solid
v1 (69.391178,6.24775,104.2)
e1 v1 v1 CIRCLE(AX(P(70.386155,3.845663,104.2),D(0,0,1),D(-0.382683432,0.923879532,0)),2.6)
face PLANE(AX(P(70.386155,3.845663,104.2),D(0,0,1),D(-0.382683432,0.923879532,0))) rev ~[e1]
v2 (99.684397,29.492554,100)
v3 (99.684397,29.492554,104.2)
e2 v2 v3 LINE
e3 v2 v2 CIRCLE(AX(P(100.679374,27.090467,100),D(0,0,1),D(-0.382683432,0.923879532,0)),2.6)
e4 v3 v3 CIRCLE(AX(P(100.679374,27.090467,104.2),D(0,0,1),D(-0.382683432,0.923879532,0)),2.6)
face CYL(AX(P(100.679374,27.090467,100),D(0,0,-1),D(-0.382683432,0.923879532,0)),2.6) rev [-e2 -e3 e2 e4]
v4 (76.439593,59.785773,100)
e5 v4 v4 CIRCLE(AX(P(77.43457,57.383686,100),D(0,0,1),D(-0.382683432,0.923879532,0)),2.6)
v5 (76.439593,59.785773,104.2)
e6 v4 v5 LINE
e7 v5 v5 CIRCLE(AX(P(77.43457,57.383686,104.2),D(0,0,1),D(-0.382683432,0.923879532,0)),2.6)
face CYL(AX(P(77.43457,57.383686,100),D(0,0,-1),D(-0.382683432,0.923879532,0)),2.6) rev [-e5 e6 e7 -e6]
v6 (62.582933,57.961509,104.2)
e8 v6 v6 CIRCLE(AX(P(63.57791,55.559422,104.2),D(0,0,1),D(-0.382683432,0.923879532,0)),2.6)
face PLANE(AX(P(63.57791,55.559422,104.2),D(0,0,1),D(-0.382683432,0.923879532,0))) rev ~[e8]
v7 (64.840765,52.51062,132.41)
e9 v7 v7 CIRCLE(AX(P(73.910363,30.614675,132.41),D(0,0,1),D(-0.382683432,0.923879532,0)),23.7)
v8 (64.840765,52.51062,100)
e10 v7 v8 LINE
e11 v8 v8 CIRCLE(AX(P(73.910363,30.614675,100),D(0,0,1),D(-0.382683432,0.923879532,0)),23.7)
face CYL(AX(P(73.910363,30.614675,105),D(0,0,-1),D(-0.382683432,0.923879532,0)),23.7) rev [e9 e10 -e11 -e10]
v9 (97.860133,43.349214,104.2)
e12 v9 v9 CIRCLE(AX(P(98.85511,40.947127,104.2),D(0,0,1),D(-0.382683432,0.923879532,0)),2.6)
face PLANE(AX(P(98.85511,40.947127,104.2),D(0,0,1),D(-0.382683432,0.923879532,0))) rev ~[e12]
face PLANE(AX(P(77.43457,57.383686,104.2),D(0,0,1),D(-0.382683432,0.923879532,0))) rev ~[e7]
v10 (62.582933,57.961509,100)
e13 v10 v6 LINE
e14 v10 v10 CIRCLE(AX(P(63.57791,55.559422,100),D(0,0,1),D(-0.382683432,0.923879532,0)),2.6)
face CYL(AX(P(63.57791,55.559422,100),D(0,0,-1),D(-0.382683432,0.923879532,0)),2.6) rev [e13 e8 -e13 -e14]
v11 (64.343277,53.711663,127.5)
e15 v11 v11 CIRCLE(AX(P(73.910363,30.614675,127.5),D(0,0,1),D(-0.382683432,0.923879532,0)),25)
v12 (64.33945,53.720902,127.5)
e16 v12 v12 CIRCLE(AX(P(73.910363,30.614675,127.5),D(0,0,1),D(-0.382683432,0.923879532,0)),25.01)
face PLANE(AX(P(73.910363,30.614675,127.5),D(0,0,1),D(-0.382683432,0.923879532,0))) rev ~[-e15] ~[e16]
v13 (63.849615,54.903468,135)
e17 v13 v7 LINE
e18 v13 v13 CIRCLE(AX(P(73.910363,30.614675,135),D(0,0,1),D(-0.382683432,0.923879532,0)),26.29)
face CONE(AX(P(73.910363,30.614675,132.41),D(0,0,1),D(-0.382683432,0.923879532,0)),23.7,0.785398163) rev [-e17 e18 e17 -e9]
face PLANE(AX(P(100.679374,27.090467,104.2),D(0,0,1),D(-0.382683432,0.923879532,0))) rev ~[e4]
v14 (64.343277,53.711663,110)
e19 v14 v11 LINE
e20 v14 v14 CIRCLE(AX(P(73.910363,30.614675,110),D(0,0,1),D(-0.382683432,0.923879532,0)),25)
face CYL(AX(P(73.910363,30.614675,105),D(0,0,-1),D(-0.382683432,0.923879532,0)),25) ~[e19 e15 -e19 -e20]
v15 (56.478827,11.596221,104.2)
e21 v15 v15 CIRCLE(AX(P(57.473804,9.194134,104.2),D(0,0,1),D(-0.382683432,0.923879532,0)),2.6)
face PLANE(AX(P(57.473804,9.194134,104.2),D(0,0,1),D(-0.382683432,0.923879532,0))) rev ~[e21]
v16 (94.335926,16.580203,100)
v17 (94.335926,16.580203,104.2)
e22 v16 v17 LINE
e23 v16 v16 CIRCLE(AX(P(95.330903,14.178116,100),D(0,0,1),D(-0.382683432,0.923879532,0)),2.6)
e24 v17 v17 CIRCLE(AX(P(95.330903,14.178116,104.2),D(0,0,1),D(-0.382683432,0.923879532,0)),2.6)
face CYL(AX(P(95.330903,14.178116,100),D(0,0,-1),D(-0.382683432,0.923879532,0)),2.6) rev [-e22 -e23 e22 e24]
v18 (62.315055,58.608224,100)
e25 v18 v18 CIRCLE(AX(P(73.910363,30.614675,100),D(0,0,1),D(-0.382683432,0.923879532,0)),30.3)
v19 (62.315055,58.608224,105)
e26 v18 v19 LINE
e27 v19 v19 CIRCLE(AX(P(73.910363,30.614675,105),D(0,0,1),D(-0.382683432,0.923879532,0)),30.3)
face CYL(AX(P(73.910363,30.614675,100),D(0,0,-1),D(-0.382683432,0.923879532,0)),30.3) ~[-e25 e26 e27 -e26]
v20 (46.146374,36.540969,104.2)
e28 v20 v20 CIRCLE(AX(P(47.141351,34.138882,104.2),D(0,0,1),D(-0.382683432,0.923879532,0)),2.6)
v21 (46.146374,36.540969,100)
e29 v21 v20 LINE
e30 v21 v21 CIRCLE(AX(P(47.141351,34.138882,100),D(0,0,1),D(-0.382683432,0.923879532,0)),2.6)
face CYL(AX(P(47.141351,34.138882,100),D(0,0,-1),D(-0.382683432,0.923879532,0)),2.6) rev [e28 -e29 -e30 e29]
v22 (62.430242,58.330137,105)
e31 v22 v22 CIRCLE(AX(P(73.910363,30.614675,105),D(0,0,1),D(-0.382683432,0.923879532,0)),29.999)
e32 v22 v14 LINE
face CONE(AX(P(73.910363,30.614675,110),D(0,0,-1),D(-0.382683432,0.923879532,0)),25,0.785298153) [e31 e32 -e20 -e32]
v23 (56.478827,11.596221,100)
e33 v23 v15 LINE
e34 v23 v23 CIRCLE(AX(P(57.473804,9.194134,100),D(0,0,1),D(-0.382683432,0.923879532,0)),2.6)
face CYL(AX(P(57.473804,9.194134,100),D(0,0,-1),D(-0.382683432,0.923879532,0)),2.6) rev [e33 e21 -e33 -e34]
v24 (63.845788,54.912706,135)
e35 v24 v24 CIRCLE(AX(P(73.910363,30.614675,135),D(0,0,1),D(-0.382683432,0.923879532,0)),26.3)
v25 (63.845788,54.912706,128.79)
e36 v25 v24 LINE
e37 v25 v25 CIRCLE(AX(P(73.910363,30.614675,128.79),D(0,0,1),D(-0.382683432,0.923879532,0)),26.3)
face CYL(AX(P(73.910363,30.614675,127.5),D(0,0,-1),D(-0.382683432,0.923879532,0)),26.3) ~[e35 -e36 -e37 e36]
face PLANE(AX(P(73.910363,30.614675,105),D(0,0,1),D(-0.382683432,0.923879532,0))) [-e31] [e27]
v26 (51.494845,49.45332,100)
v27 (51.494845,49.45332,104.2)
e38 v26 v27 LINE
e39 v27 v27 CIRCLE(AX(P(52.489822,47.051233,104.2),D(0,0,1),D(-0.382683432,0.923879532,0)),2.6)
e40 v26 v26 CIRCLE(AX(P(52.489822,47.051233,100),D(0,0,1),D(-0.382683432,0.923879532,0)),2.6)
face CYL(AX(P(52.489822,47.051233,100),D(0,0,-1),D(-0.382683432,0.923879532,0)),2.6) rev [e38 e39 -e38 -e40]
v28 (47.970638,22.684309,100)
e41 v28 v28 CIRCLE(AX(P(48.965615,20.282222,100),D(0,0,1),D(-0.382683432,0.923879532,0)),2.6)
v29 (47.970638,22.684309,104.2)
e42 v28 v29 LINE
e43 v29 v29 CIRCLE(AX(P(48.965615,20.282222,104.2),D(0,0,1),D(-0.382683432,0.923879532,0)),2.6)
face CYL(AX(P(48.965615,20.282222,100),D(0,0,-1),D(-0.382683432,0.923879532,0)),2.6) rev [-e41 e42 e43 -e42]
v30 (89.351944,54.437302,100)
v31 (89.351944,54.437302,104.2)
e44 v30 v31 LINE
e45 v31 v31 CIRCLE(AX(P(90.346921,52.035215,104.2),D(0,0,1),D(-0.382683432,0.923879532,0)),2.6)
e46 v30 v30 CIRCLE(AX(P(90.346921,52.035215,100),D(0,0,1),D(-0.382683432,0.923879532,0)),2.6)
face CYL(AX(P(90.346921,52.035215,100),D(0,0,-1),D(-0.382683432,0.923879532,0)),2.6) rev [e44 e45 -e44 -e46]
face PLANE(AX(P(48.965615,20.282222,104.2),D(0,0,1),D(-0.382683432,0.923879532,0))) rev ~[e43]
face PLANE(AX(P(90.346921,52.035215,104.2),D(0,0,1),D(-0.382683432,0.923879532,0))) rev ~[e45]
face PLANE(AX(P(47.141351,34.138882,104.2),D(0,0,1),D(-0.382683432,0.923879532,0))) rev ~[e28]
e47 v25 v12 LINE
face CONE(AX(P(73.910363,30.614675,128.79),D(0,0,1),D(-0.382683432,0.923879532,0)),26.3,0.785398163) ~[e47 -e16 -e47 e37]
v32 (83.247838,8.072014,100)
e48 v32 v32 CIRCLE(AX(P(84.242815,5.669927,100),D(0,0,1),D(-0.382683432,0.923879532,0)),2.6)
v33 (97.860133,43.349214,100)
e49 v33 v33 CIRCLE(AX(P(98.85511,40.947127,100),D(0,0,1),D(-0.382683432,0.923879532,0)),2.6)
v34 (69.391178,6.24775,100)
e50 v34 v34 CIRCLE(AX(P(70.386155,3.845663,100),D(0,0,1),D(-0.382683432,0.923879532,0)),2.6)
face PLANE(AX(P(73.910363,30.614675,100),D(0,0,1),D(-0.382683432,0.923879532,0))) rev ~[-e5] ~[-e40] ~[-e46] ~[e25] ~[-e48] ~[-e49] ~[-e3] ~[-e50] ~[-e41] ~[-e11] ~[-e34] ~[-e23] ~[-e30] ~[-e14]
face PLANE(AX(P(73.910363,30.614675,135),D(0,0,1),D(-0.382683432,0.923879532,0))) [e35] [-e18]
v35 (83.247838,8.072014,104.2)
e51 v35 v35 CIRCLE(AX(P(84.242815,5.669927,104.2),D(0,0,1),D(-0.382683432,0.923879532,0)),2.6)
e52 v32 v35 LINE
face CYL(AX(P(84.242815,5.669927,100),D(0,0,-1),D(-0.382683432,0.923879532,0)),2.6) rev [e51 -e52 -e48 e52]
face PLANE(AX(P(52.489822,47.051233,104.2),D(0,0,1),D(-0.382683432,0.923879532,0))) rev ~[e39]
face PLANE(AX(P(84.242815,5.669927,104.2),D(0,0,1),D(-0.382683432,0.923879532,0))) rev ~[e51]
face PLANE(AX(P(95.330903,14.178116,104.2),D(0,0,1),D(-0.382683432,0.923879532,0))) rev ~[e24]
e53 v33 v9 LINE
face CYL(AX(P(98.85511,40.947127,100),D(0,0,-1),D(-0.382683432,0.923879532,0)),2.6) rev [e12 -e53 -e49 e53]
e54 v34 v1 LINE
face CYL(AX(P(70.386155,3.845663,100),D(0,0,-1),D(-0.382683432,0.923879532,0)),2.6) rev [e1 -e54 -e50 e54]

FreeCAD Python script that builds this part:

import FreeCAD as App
import Part
import Sketcher
from FreeCAD import Vector


def edges_at(feature, points):
    """Names of the edges that pass closest to the given points."""
    edges = feature.Shape.Edges
    near = lambda p: min(range(len(edges)), key=lambda i: edges[i].distToShape(Part.Vertex(*p))[0])
    return sorted({f"Edge{near(p) + 1}" for p in points})

doc = App.newDocument("Part")
params = doc.addObject("Spreadsheet::Sheet", "Params")
for row, (alias, value) in enumerate([
    ("sketch1_diameter", "60.6 mm"),
    ("sketch1_diameter2", "47.4 mm"),
    ("pad1_length", "5 mm"),
    ("sketch2_diameter", "5.2 mm"),
    ("pocket1_length", "4.2 mm"),
    ("sketch3_diameter", "50 mm"),
    ("sketch3_diameter2", "47.4 mm"),
    ("pad2_length", "30 mm"),
    ("chamfer_size", "4.999 mm"),
    ("chamfer_size2", "5 mm"),
    ("sketch4_diameter", "50 mm"),
    ("sketch4_diameter2", "52.6 mm"),
    ("pad3_length", "7.5 mm"),
    ("chamfer2_size", "1.29 mm"),
    ("chamfer3_size", "2.59 mm"),
], start=1):
    params.set(f"A{row}", alias)
    params.set(f"B{row}", "=" + value)
    params.setAlias(f"B{row}", alias)

body = doc.addObject("PartDesign::Body", "Body")

sketch1 = doc.addObject("Sketcher::SketchObject", "Sketch")
body.addObject(sketch1)
sketch1.AttachmentSupport = (doc.XY_Plane, [""])
sketch1.MapMode = "FlatFace"
sketch1.addGeometry(Part.Circle(Vector(74, 31, 0), Vector(0, 0, 1), 30), False)
sketch1.addGeometry(Part.Circle(Vector(74, 31, 0), Vector(0, 0, 1), 24), False)
sketch1.addConstraint(Sketcher.Constraint("Coincident", 1, 3, 0, 3))
sketch1.addConstraint(Sketcher.Constraint("Diameter", 0, 60.6))
sketch1.addConstraint(Sketcher.Constraint("Diameter", 1, 47.4))
sketch1.addConstraint(Sketcher.Constraint("DistanceX", -1, 1, 0, 3, 73.910363))
sketch1.addConstraint(Sketcher.Constraint("DistanceY", -1, 1, 0, 3, 30.614675))
sketch1.setExpression("Constraints[1]", "Params.sketch1_diameter")
sketch1.setExpression("Constraints[2]", "Params.sketch1_diameter2")
pad1 = doc.addObject("PartDesign::Pad", "Pad")
body.addObject(pad1)
pad1.Profile = sketch1
pad1.setExpression("Length", "Params.pad1_length")

sketch2 = doc.addObject("Sketcher::SketchObject", "Sketch001")
body.addObject(sketch2)
sketch2.AttachmentSupport = (doc.XY_Plane, [""])
sketch2.MapMode = "FlatFace"
sketch2.addGeometry(Part.Circle(Vector(49, 20.3, 0), Vector(0, 0, 1), 2.6), False)
sketch2.addGeometry(Part.Circle(Vector(70.4, 3.8, 0), Vector(0, 0, 1), 2.6), False)
sketch2.addGeometry(Part.Circle(Vector(95.3, 14.2, 0), Vector(0, 0, 1), 2.6), False)
sketch2.addGeometry(Part.Circle(Vector(98.9, 40.9, 0), Vector(0, 0, 1), 2.6), False)
sketch2.addGeometry(Part.Circle(Vector(77.4, 57.4, 0), Vector(0, 0, 1), 2.6), False)
sketch2.addGeometry(Part.Circle(Vector(52.5, 47.1, 0), Vector(0, 0, 1), 2.6), False)
sketch2.addGeometry(Part.Circle(Vector(57.5, 9.2, 0), Vector(0, 0, 1), 2.6), False)
sketch2.addGeometry(Part.Circle(Vector(84.2, 5.7, 0), Vector(0, 0, 1), 2.6), False)
sketch2.addGeometry(Part.Circle(Vector(100.7, 27.1, 0), Vector(0, 0, 1), 2.6), False)
sketch2.addGeometry(Part.Circle(Vector(90.3, 52, 0), Vector(0, 0, 1), 2.6), False)
sketch2.addGeometry(Part.Circle(Vector(63.6, 55.6, 0), Vector(0, 0, 1), 2.6), False)
sketch2.addGeometry(Part.Circle(Vector(47.1, 34.1, 0), Vector(0, 0, 1), 2.6), False)
sketch2.addConstraint(Sketcher.Constraint("Equal", 0, 1))
sketch2.addConstraint(Sketcher.Constraint("Equal", 1, 2))
sketch2.addConstraint(Sketcher.Constraint("Equal", 2, 3))
sketch2.addConstraint(Sketcher.Constraint("Equal", 3, 4))
sketch2.addConstraint(Sketcher.Constraint("Equal", 4, 5))
sketch2.addConstraint(Sketcher.Constraint("Equal", 5, 6))
sketch2.addConstraint(Sketcher.Constraint("Equal", 6, 7))
sketch2.addConstraint(Sketcher.Constraint("Equal", 7, 8))
sketch2.addConstraint(Sketcher.Constraint("Equal", 8, 9))
sketch2.addConstraint(Sketcher.Constraint("Equal", 9, 10))
sketch2.addConstraint(Sketcher.Constraint("Equal", 10, 11))
sketch2.addConstraint(Sketcher.Constraint("Diameter", 0, 5.2))
sketch2.addConstraint(Sketcher.Constraint("DistanceX", 6, 3, 2, 3, 37.857099))
sketch2.addConstraint(Sketcher.Constraint("DistanceY", 6, 3, 5, 3, 37.857099))
sketch2.addConstraint(Sketcher.Constraint("DistanceX", 0, 3, 7, 3, 35.2772))
sketch2.addConstraint(Sketcher.Constraint("DistanceY", 7, 3, 3, 3, 35.2772))
sketch2.addConstraint(Sketcher.Constraint("DistanceY", 2, 3, 9, 3, 37.857099))
sketch2.addConstraint(Sketcher.Constraint("DistanceX", 5, 3, 9, 3, 37.857099))
sketch2.addConstraint(Sketcher.Constraint("DistanceY", 0, 3, 10, 3, 35.2772))
sketch2.addConstraint(Sketcher.Constraint("DistanceX", 10, 3, 3, 3, 35.2772))
sketch2.addConstraint(Sketcher.Constraint("DistanceY", -1, 1, 0, 3, 20.282222))
sketch2.addConstraint(Sketcher.Constraint("DistanceX", -1, 1, 3, 3, 98.85511))
sketch2.addConstraint(Sketcher.Constraint("DistanceX", -1, 1, 4, 3, 77.43457))
sketch2.addConstraint(Sketcher.Constraint("DistanceX", -1, 1, 9, 3, 90.346921))
sketch2.addConstraint(Sketcher.Constraint("DistanceX", -1, 1, 11, 3, 47.141351))
sketch2.addConstraint(Sketcher.Constraint("DistanceY", -1, 1, 11, 3, 34.138882))
sketch2.addConstraint(Sketcher.Constraint("DistanceX", 0, 3, 1, 3, 21.42054))
sketch2.addConstraint(Sketcher.Constraint("DistanceY", 1, 3, 0, 3, 16.436559))
sketch2.addConstraint(Sketcher.Constraint("DistanceY", 2, 3, 3, 3, 26.769011))
sketch2.addConstraint(Sketcher.Constraint("DistanceY", 3, 3, 4, 3, 16.436559))
sketch2.addConstraint(Sketcher.Constraint("DistanceY", 0, 3, 5, 3, 26.769011))
sketch2.addConstraint(Sketcher.Constraint("DistanceX", 5, 3, 2, 3, 42.84108))
sketch2.addConstraint(Sketcher.Constraint("DistanceX", 6, 3, 1, 3, 12.912351))
sketch2.addConstraint(Sketcher.Constraint("DistanceY", 6, 3, 2, 3, 4.983982))
sketch2.addConstraint(Sketcher.Constraint("DistanceX", 2, 3, 8, 3, 5.348471))
sketch2.addConstraint(Sketcher.Constraint("DistanceY", 2, 3, 8, 3, 12.912351))
sketch2.setExpression("Constraints[11]", "Params.sketch2_diameter")
pocket1 = doc.addObject("PartDesign::Pocket", "Pocket")
body.addObject(pocket1)
pocket1.Profile = sketch2
pocket1.setExpression("Length", "Params.pocket1_length")
pocket1.Reversed = True

sketch3 = doc.addObject("Sketcher::SketchObject", "Sketch002")
body.addObject(sketch3)
sketch3.AttachmentSupport = (doc.XY_Plane, [""])
sketch3.MapMode = "FlatFace"
sketch3.AttachmentOffset = App.Placement(Vector(0, 0, 5), App.Rotation())
sketch3.addGeometry(Part.Circle(Vector(74, 31, 0), Vector(0, 0, 1), 25), False)
sketch3.addGeometry(Part.Circle(Vector(74, 31, 0), Vector(0, 0, 1), 24), False)
sketch3.addConstraint(Sketcher.Constraint("Coincident", 1, 3, 0, 3))
sketch3.addConstraint(Sketcher.Constraint("Diameter", 0, 50.0))
sketch3.addConstraint(Sketcher.Constraint("Diameter", 1, 47.4))
sketch3.addConstraint(Sketcher.Constraint("DistanceX", -1, 1, 0, 3, 73.910363))
sketch3.addConstraint(Sketcher.Constraint("DistanceY", -1, 1, 0, 3, 30.614675))
sketch3.setExpression("Constraints[1]", "Params.sketch3_diameter")
sketch3.setExpression("Constraints[2]", "Params.sketch3_diameter2")
pad2 = doc.addObject("PartDesign::Pad", "Pad001")
body.addObject(pad2)
pad2.Profile = sketch3
pad2.setExpression("Length", "Params.pad2_length")
doc.recompute()

chamfer = doc.addObject("PartDesign::Chamfer", "Chamfer")
body.addObject(chamfer)
chamfer.Base = (pad2, edges_at(pad2, [(83.477, 7.518, 5)]))
chamfer.ChamferType = "Two distances"
chamfer.setExpression("Size", "Params.chamfer_size")
chamfer.setExpression("Size2", "Params.chamfer_size2")

sketch4 = doc.addObject("Sketcher::SketchObject", "Sketch003")
body.addObject(sketch4)
sketch4.AttachmentSupport = (doc.XY_Plane, [""])
sketch4.MapMode = "FlatFace"
sketch4.AttachmentOffset = App.Placement(Vector(0, 0, 27.5), App.Rotation())
sketch4.addGeometry(Part.Circle(Vector(74, 31, 0), Vector(0, 0, 1), 26), False)
sketch4.addGeometry(Part.Circle(Vector(74, 31, 0), Vector(0, 0, 1), 25), False)
sketch4.addConstraint(Sketcher.Constraint("Coincident", 1, 3, 0, 3))
sketch4.addConstraint(Sketcher.Constraint("Diameter", 1, 50.0))
sketch4.addConstraint(Sketcher.Constraint("Diameter", 0, 52.6))
sketch4.addConstraint(Sketcher.Constraint("DistanceX", -1, 1, 0, 3, 73.910363))
sketch4.addConstraint(Sketcher.Constraint("DistanceY", -1, 1, 0, 3, 30.614675))
sketch4.setExpression("Constraints[1]", "Params.sketch4_diameter")
sketch4.setExpression("Constraints[2]", "Params.sketch4_diameter2")
pad3 = doc.addObject("PartDesign::Pad", "Pad002")
body.addObject(pad3)
pad3.Profile = sketch4
pad3.setExpression("Length", "Params.pad3_length")
doc.recompute()

chamfer2 = doc.addObject("PartDesign::Chamfer", "Chamfer001")
body.addObject(chamfer2)
chamfer2.Base = (pad3, edges_at(pad3, [(83.975, 6.317, 27.5)]))
chamfer2.setExpression("Size", "Params.chamfer2_size")
doc.recompute()

chamfer3 = doc.addObject("PartDesign::Chamfer", "Chamfer002")
body.addObject(chamfer3)
chamfer3.Base = (chamfer2, edges_at(chamfer2, [(82.98, 8.719, 35)]))
chamfer3.setExpression("Size", "Params.chamfer3_size")
body2 = doc.addObject("PartDesign::Body", "Body001")
doc.recompute()

body.Placement = App.Placement(Vector(0, 0, 100), App.Rotation(Vector(0, 0, 1), 0))
boolean = doc.addObject("PartDesign::Boolean", "Boolean")
body2.addObject(boolean)
boolean.Type = "Fuse"
boolean.addObjects([body])

doc.recompute()
